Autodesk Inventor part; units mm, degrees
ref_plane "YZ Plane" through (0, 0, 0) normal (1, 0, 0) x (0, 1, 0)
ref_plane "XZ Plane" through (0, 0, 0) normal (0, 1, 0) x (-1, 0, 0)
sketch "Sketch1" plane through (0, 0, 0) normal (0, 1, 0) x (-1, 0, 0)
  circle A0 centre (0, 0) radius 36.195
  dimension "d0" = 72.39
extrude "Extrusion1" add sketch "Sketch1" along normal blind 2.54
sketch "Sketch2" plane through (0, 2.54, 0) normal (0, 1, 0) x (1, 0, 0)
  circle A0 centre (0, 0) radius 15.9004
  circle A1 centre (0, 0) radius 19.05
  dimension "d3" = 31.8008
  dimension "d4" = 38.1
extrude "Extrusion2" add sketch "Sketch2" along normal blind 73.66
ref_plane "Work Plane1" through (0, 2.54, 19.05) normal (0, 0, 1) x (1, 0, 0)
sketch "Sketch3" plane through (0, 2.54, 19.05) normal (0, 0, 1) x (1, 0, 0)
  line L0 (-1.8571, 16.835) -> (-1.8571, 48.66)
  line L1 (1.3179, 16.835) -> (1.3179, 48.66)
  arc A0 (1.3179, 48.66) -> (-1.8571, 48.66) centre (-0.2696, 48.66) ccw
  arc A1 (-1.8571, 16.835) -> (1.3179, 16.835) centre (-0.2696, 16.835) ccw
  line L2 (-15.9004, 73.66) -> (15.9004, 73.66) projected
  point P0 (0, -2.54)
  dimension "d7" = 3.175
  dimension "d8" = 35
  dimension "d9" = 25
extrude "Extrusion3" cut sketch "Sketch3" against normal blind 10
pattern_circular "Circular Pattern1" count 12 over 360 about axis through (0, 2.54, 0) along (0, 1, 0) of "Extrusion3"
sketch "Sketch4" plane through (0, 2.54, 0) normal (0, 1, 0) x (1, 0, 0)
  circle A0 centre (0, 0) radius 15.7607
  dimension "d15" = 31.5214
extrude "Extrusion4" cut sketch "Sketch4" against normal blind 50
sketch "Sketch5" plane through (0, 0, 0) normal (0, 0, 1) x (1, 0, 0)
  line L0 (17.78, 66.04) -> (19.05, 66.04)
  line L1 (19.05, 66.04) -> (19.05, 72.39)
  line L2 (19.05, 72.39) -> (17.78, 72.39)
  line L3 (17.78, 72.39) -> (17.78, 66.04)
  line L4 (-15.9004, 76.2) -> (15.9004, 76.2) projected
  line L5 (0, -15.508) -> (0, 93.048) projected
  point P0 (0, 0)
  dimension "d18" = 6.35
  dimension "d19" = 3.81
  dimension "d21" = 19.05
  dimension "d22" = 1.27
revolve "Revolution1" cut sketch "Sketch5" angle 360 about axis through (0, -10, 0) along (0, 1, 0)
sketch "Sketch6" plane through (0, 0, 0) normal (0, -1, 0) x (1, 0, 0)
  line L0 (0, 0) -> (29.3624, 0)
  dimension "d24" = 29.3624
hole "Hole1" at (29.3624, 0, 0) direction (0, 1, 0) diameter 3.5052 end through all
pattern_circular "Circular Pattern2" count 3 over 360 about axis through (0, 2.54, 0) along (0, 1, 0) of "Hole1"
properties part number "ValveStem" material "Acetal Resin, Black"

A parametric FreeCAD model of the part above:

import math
import FreeCAD as App
import Part
import Sketcher
Q = App.Units.Quantity


def add_polygon(sketch, points):
    """Adds a closed chain of lines whose ends are joined by coincident constraints."""
    first, n = sketch.GeometryCount, len(points)
    for a, b in zip(points, points[1:] + points[:1]):
        sketch.addGeometry(Part.LineSegment(App.Vector(*a, 0), App.Vector(*b, 0)), False)
    for i in range(n):
        sketch.addConstraint(Sketcher.Constraint("Coincident", first + i, 2, first + (i + 1) % n, 1))

doc = App.newDocument("Part")
body = doc.addObject("PartDesign::Body", "Body")

# Sketch on XZ plane
sketch1 = body.newObject("Sketcher::SketchObject", "Sketch")
sketch1.AttachmentSupport = (doc.getObject("XZ_Plane"), [""])
sketch1.MapMode = "FlatFace"
sketch1.addGeometry(Part.Circle(App.Vector(0, 0, 0), App.Vector(0, 0, 1), 36), False)
sketch1.addConstraint(Sketcher.Constraint("Coincident", 0, 3, -1, 1))
sketch1.addConstraint(Sketcher.Constraint("Diameter", 0, Q("2.85 in")))
pad1 = body.newObject("PartDesign::Pad", "Pad")
pad1.Profile = sketch1
pad1.Length = Q("0.1 in")
pad1.Reversed = True

# Sketch on XZ plane
sketch2 = body.newObject("Sketcher::SketchObject", "Sketch001")
sketch2.AttachmentSupport = (doc.getObject("XZ_Plane"), [""])
sketch2.MapMode = "FlatFace"
sketch2.AttachmentOffset = App.Placement(App.Vector(0, 0, -0.1 * 25.4), App.Rotation())
sketch2.addGeometry(Part.Circle(App.Vector(0, 0, 0), App.Vector(0, 0, 1), 19), False)
sketch2.addGeometry(Part.Circle(App.Vector(0, 0, 0), App.Vector(0, 0, 1), 16), False)
sketch2.addConstraint(Sketcher.Constraint("Coincident", 0, 3, -1, 1))
sketch2.addConstraint(Sketcher.Constraint("Coincident", 1, 3, -1, 1))
sketch2.addConstraint(Sketcher.Constraint("Diameter", 0, Q("1.5 in")))
sketch2.addConstraint(Sketcher.Constraint("Diameter", 1, Q("1.252 in")))
pad2 = body.newObject("PartDesign::Pad", "Pad001")
pad2.Profile = sketch2
pad2.Length = Q("2.9 in")
pad2.Reversed = True

# Sketch on XY plane
sketch3 = body.newObject("Sketcher::SketchObject", "Sketch002")
sketch3.AttachmentSupport = (doc.getObject("XY_Plane"), [""])
sketch3.MapMode = "FlatFace"
sketch3.AttachmentOffset = App.Placement(App.Vector(0, 0, 0.75 * 25.4), App.Rotation())
sketch3.addGeometry(Part.LineSegment(App.Vector(-1.9, 51.2, 0), App.Vector(-1.9, 19.4, 0)), False)
sketch3.addGeometry(Part.ArcOfCircle(Part.Circle(App.Vector(-0.3, 19.4, 0), App.Vector(0, 0, 1), 1.6), math.radians(180), math.radians(360)), False)
sketch3.addGeometry(Part.LineSegment(App.Vector(1.3, 19.4, 0), App.Vector(1.3, 51.2, 0)), False)
sketch3.addGeometry(Part.ArcOfCircle(Part.Circle(App.Vector(-0.3, 51.2, 0), App.Vector(0, 0, 1), 1.6), math.radians(0), math.radians(180)), False)
sketch3.addConstraint(Sketcher.Constraint("Tangent", 0, 2, 1, 1))
sketch3.addConstraint(Sketcher.Constraint("Tangent", 1, 2, 2, 1))
sketch3.addConstraint(Sketcher.Constraint("Tangent", 2, 2, 3, 1))
sketch3.addConstraint(Sketcher.Constraint("Tangent", 3, 2, 0, 1))
sketch3.addConstraint(Sketcher.Constraint("Vertical", 0))
sketch3.addConstraint(Sketcher.Constraint("Vertical", 2))
sketch3.addConstraint(Sketcher.Constraint("Radius", 1, Q("0.0625 in")))
sketch3.addConstraint(Sketcher.Constraint("DistanceY", 0, 2, 0, 1, Q("31.825 mm")))
sketch3.addConstraint(Sketcher.Constraint("DistanceY", -1, 1, 1, 3, Q("0.7628 in")))
sketch3.addConstraint(Sketcher.Constraint("DistanceX", 1, 3, -1, 1, Q("0.2696 mm")))
pocket1 = body.newObject("PartDesign::Pocket", "Pocket")
pocket1.Profile = sketch3
pocket1.Length = Q("0.3937008 in")
doc.recompute()

polarpattern = body.newObject("PartDesign::PolarPattern", "PolarPattern")
polarpattern.Originals = [pocket1]
polarpattern.Axis = (doc.getObject("Y_Axis"), [""])
polarpattern.Angle = 360
polarpattern.Occurrences = 12
body.Tip = polarpattern

# Sketch on XZ plane
sketch4 = body.newObject("Sketcher::SketchObject", "Sketch003")
sketch4.AttachmentSupport = (doc.getObject("XZ_Plane"), [""])
sketch4.MapMode = "FlatFace"
sketch4.AttachmentOffset = App.Placement(App.Vector(0, 0, -0.1 * 25.4), App.Rotation())
sketch4.addGeometry(Part.Circle(App.Vector(0, 0, 0), App.Vector(0, 0, 1), 16), False)
sketch4.addConstraint(Sketcher.Constraint("Coincident", 0, 3, -1, 1))
sketch4.addConstraint(Sketcher.Constraint("Diameter", 0, Q("1.241 in")))
pocket2 = body.newObject("PartDesign::Pocket", "Pocket001")
pocket2.Profile = sketch4
pocket2.Length = Q("1.9685039 in")
pocket2.Reversed = True

# Sketch on XY plane
sketch5 = body.newObject("Sketcher::SketchObject", "Sketch004")
sketch5.AttachmentSupport = (doc.getObject("XY_Plane"), [""])
sketch5.MapMode = "FlatFace"
add_polygon(sketch5, [(17.8, 72.4), (17.8, 66), (19.1, 66), (19.1, 72.4)])  # lines 0-3
sketch5.addConstraint(Sketcher.Constraint("Vertical", 0))
sketch5.addConstraint(Sketcher.Constraint("Horizontal", 1))
sketch5.addConstraint(Sketcher.Constraint("Vertical", 2))
sketch5.addConstraint(Sketcher.Constraint("Horizontal", 3))
sketch5.addConstraint(Sketcher.Constraint("DistanceX", 1, 1, 1, 2, Q("0.05 in")))
sketch5.addConstraint(Sketcher.Constraint("DistanceY", 0, 2, 0, 1, Q("0.25 in")))
sketch5.addConstraint(Sketcher.Constraint("DistanceX", -1, 1, 1, 2, Q("0.75 in")))
sketch5.addConstraint(Sketcher.Constraint("DistanceY", -1, 1, 0, 2, Q("2.6 in")))
groove = body.newObject("PartDesign::Groove", "Groove")
groove.Profile = sketch5
groove.ReferenceAxis = (sketch5, ["V_Axis"])
groove.Angle = 360

# Sketch on XZ plane
sketch6 = body.newObject("Sketcher::SketchObject", "Sketch005")
sketch6.AttachmentSupport = (doc.getObject("XZ_Plane"), [""])
sketch6.MapMode = "FlatFace"
sketch6.addGeometry(Part.Circle(App.Vector(29.4, 0, 0), App.Vector(0, 0, 1), 1.8), False)
sketch6.addConstraint(Sketcher.Constraint("PointOnObject", 0, 3, -1))
sketch6.addConstraint(Sketcher.Constraint("Diameter", 0, Q("0.138 in")))
sketch6.addConstraint(Sketcher.Constraint("DistanceX", -1, 1, 0, 3, Q("1.156 in")))
doc.recompute()
hole = body.newObject("PartDesign::Hole", "Hole")
hole.Profile = sketch6
hole.ThreadType = "None"
hole.Diameter = Q("0.138 in")
hole.DepthType = "ThroughAll"
doc.recompute()

polarpattern2 = body.newObject("PartDesign::PolarPattern", "PolarPattern001")
polarpattern2.Originals = [hole]
polarpattern2.Axis = (doc.getObject("Y_Axis"), [""])
polarpattern2.Angle = 360
polarpattern2.Occurrences = 3
body.Tip = polarpattern2

doc.recompute()
